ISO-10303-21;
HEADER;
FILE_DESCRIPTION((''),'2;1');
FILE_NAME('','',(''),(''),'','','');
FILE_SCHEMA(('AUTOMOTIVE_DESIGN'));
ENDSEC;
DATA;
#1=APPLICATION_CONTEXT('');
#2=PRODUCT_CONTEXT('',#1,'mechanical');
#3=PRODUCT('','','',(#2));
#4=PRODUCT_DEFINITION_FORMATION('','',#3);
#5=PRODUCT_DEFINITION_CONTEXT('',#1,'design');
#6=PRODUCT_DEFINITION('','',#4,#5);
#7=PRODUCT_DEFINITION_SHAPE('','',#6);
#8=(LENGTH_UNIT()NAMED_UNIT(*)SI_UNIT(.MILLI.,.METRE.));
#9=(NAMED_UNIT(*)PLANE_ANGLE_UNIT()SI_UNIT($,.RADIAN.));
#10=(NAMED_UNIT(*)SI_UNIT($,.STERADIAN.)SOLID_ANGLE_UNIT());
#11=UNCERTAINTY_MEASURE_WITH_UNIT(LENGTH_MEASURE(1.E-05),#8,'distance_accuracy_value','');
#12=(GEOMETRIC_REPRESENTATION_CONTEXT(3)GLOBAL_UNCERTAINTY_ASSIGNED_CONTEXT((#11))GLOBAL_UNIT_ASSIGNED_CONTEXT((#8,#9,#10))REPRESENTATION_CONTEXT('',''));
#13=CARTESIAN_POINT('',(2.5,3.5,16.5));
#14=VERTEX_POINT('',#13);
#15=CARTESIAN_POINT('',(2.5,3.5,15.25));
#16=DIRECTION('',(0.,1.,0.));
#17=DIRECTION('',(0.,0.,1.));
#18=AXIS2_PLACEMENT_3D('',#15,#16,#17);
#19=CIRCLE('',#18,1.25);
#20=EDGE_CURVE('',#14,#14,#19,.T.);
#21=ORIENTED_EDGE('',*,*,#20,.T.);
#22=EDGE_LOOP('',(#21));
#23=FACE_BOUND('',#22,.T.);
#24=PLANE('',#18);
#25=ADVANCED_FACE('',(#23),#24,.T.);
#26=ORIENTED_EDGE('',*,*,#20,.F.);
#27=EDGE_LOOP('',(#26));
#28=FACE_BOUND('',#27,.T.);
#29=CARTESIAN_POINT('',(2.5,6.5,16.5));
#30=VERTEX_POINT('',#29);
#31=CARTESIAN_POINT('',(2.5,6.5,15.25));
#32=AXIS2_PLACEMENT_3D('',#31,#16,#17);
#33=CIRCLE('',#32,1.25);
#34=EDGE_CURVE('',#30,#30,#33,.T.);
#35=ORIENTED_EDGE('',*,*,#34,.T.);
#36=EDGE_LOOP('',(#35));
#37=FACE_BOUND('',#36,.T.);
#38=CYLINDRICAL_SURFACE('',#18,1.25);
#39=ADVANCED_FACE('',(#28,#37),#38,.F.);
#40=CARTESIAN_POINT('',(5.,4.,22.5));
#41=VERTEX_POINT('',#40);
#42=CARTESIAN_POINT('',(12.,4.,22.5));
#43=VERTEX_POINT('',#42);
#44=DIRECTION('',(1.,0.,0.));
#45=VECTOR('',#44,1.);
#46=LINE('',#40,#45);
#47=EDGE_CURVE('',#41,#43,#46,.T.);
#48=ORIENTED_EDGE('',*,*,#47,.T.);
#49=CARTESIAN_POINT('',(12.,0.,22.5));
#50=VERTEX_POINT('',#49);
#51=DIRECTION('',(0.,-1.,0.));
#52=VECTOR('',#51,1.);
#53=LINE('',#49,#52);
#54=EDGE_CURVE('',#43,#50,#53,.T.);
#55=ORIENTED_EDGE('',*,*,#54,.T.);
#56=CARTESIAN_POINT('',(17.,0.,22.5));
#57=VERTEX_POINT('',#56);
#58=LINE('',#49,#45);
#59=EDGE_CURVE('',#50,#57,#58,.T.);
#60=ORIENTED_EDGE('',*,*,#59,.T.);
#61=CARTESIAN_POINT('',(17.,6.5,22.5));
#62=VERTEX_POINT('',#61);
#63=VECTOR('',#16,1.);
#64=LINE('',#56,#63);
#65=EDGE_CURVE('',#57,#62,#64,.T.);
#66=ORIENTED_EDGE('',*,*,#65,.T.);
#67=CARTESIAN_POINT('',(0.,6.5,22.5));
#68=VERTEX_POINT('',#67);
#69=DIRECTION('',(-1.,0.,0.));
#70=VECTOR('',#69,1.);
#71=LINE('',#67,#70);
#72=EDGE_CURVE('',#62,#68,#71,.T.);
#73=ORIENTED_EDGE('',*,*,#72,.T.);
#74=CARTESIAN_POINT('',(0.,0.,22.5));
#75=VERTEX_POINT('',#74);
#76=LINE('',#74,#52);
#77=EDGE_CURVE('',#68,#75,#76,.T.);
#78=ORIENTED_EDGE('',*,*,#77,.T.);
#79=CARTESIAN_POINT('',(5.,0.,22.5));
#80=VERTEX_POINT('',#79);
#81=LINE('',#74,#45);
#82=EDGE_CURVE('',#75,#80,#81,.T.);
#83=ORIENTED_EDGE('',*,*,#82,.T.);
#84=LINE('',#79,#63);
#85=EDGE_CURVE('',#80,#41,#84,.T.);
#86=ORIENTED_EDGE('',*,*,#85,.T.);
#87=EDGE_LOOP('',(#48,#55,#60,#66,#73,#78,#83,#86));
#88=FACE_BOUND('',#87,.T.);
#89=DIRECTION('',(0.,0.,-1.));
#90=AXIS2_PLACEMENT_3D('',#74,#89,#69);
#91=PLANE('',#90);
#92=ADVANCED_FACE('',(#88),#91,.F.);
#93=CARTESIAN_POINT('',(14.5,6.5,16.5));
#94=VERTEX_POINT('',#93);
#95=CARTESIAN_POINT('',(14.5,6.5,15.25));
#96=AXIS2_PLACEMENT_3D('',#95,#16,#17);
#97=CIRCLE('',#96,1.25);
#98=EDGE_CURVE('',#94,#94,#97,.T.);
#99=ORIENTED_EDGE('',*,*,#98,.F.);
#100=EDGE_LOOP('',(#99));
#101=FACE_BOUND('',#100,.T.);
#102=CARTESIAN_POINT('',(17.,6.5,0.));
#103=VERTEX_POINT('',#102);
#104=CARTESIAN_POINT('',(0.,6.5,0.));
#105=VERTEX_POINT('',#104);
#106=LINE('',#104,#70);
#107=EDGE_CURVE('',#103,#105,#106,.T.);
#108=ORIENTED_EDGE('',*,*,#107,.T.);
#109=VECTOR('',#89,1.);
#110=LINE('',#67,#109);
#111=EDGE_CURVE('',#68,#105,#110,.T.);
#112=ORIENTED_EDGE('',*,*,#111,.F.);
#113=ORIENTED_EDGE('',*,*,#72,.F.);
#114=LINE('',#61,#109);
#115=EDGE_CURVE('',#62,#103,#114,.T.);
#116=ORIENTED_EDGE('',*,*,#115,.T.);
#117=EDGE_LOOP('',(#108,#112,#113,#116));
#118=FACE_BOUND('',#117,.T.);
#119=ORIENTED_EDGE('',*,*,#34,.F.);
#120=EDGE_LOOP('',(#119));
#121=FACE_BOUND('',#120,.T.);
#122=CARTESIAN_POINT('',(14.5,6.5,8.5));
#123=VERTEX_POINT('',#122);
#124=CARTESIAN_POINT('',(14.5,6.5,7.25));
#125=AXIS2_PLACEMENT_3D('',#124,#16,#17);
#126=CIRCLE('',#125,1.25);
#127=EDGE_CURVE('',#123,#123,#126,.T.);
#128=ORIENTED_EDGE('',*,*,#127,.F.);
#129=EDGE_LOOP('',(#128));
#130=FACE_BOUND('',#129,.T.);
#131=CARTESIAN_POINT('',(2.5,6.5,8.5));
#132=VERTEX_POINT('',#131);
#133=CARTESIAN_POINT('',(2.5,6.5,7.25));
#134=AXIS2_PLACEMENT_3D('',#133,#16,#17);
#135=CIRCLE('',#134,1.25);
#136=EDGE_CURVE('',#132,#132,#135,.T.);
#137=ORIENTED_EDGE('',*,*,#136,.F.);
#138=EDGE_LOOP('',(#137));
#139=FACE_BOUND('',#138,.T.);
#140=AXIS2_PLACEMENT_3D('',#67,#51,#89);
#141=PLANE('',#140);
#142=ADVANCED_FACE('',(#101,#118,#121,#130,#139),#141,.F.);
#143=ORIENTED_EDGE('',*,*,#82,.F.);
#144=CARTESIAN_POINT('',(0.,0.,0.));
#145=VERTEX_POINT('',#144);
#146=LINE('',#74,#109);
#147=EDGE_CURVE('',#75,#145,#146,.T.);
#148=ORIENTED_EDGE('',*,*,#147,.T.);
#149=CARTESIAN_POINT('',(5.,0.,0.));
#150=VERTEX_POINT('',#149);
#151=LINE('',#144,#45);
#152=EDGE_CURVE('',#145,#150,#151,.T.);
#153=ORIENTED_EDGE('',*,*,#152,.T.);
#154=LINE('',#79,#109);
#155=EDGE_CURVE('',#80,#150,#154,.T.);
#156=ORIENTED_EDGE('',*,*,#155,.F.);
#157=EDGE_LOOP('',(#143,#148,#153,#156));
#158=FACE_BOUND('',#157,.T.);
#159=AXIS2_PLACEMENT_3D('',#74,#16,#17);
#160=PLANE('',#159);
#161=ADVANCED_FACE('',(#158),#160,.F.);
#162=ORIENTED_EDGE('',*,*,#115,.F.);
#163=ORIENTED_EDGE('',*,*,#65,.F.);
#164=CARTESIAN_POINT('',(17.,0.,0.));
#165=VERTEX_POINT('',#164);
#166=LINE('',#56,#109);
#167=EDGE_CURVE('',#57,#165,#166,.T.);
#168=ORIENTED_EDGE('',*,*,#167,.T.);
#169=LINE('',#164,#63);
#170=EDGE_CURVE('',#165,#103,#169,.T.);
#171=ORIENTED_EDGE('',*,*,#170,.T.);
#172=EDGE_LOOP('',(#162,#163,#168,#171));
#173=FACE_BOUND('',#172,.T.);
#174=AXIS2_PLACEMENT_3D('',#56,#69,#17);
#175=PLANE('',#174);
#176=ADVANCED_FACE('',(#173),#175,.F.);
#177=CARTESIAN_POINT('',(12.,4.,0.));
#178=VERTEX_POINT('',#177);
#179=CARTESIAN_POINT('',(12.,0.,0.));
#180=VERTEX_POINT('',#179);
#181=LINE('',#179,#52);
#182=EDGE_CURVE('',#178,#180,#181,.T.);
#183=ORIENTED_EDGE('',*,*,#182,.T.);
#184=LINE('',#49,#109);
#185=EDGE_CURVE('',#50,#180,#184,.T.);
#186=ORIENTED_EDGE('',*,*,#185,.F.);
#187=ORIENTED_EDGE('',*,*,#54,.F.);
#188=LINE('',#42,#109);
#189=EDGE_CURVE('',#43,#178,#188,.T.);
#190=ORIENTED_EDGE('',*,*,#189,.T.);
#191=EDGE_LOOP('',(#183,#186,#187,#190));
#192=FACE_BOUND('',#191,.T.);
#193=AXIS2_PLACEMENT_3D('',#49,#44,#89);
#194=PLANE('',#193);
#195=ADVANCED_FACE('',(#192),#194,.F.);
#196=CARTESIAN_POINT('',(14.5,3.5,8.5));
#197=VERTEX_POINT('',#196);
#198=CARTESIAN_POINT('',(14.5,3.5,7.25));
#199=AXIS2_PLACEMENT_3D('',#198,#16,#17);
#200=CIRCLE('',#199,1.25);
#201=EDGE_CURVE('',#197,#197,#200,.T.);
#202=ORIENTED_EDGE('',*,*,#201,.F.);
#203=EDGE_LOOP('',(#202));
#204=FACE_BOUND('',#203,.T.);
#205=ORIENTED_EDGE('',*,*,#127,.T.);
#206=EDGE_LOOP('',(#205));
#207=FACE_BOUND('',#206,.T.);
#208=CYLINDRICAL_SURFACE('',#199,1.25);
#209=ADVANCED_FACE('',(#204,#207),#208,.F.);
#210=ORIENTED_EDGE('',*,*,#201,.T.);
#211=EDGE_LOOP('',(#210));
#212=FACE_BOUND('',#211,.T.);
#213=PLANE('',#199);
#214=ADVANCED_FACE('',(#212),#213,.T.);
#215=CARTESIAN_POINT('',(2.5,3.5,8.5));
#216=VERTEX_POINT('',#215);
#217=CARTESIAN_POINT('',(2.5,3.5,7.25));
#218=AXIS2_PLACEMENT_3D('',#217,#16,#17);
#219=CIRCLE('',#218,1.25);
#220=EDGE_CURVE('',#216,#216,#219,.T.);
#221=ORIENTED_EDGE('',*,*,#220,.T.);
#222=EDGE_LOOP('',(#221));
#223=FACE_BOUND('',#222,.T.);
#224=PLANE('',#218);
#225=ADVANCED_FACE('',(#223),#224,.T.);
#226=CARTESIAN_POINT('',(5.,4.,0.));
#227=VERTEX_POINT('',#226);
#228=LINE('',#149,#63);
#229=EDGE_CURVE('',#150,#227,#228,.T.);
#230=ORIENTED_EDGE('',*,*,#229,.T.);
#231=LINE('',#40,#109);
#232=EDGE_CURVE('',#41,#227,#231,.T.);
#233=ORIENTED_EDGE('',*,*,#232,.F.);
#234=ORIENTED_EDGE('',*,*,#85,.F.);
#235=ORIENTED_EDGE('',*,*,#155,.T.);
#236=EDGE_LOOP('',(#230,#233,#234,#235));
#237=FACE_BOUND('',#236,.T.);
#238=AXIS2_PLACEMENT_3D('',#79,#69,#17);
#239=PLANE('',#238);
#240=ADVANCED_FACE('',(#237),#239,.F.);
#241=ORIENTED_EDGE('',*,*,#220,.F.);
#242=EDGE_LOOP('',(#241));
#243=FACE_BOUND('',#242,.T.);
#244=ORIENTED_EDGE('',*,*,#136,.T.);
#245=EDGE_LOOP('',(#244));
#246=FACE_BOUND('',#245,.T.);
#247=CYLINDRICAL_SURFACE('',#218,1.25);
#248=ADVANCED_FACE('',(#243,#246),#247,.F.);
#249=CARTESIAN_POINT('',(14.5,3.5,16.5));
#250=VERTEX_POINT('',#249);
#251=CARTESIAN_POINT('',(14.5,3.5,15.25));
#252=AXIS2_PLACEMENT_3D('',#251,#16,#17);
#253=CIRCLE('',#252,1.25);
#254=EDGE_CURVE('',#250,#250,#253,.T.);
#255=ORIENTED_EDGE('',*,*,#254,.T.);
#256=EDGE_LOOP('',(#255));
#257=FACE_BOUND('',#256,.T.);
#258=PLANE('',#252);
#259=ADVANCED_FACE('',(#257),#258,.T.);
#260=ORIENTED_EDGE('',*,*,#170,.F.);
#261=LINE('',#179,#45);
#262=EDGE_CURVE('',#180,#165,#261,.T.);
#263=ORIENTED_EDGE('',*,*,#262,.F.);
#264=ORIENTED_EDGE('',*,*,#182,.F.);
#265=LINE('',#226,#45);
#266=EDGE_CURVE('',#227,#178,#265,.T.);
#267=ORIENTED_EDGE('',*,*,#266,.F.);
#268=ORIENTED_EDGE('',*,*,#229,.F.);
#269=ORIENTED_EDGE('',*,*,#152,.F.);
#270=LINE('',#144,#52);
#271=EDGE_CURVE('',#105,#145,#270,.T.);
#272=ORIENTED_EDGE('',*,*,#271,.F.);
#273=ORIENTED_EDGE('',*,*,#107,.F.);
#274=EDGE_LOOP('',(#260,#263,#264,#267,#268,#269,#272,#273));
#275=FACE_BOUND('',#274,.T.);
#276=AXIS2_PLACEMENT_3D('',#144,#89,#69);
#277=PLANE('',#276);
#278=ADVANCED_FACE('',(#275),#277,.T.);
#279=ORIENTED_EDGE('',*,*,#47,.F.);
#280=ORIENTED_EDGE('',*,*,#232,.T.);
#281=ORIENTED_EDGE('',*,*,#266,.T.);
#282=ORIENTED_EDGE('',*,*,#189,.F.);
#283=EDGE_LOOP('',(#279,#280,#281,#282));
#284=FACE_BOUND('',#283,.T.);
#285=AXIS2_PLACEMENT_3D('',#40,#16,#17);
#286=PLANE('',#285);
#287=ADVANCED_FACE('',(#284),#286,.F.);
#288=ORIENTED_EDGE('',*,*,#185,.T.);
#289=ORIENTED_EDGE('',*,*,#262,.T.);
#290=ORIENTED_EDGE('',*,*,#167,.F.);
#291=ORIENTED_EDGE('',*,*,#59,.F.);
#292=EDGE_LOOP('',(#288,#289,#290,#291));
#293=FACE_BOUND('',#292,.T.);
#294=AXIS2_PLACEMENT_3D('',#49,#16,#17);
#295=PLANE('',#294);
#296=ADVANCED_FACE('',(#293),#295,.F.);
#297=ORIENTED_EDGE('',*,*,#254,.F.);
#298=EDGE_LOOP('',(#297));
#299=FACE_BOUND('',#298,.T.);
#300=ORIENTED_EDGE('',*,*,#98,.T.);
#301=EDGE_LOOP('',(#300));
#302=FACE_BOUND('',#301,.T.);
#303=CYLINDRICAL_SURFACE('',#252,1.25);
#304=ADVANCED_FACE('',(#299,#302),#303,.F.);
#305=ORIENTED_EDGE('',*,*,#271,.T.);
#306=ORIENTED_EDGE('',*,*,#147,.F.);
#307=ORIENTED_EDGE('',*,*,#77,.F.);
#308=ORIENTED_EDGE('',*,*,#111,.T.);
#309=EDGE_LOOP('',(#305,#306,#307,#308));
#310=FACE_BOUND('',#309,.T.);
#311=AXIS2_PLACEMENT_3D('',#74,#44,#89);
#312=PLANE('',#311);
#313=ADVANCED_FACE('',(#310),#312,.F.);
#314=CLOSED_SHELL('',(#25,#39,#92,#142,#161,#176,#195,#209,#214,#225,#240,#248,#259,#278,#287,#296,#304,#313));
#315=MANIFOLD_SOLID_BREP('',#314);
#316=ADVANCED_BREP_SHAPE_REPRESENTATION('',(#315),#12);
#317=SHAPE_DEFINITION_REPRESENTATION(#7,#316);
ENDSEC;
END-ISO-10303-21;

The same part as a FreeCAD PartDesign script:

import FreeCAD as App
import Part
import Sketcher
Q = App.Units.Quantity


def add_polygon(sketch, points):
    """Adds a closed chain of lines whose ends are joined by coincident constraints."""
    first, n = sketch.GeometryCount, len(points)
    for a, b in zip(points, points[1:] + points[:1]):
        sketch.addGeometry(Part.LineSegment(App.Vector(*a, 0), App.Vector(*b, 0)), False)
    for i in range(n):
        sketch.addConstraint(Sketcher.Constraint("Coincident", first + i, 2, first + (i + 1) % n, 1))

doc = App.newDocument("Part")
body = doc.addObject("PartDesign::Body", "Body")

# Sketch on XY plane
sketch1 = doc.addObject("Sketcher::SketchObject", "Sketch")
body.addObject(sketch1)
sketch1.AttachmentSupport = (doc.XY_Plane, [""])
sketch1.MapMode = "FlatFace"
add_polygon(sketch1, [(12, 0), (17, 0), (17, 6.5), (0, 6.5), (0, 0), (5, 0), (5, 4), (12, 4)])  # lines 0-7
sketch1.addConstraint(Sketcher.Constraint("Horizontal", 0))
sketch1.addConstraint(Sketcher.Constraint("Vertical", 1))
sketch1.addConstraint(Sketcher.Constraint("Horizontal", 2))
sketch1.addConstraint(Sketcher.Constraint("Vertical", 3))
sketch1.addConstraint(Sketcher.Constraint("Horizontal", 4))
sketch1.addConstraint(Sketcher.Constraint("Vertical", 5))
sketch1.addConstraint(Sketcher.Constraint("Horizontal", 6))
sketch1.addConstraint(Sketcher.Constraint("Vertical", 7))
sketch1.addConstraint(Sketcher.Constraint("Coincident", 3, 2, -1, 1))
sketch1.addConstraint(Sketcher.Constraint("PointOnObject", 0, 2, -1))
sketch1.addConstraint(Sketcher.Constraint("Equal", 0, 4))
sketch1.addConstraint(Sketcher.Constraint("DistanceX", 0, 1, 0, 2, Q("5 mm")))
sketch1.addConstraint(Sketcher.Constraint("DistanceX", 2, 2, 2, 1, Q("17 mm")))
sketch1.addConstraint(Sketcher.Constraint("DistanceY", 5, 1, 5, 2, Q("4 mm")))
sketch1.addConstraint(Sketcher.Constraint("DistanceY", 1, 1, 1, 2, Q("6.5 mm")))
pad1 = doc.addObject("PartDesign::Pad", "Pad")
body.addObject(pad1)
pad1.Profile = sketch1
pad1.Length = 22.5

# Sketch on XZ plane
sketch2 = doc.addObject("Sketcher::SketchObject", "Sketch001")
body.addObject(sketch2)
sketch2.AttachmentSupport = (doc.XZ_Plane, [""])
sketch2.MapMode = "FlatFace"
sketch2.AttachmentOffset = App.Placement(App.Vector(0, 0, -6.5), App.Rotation())
sketch2.addGeometry(Part.Circle(App.Vector(14.5, 7.2, 0), App.Vector(0, 0, 1), 1.2), False)
sketch2.addGeometry(Part.Circle(App.Vector(2.5, 7.2, 0), App.Vector(0, 0, 1), 1.2), False)
sketch2.addGeometry(Part.Circle(App.Vector(2.5, 15.2, 0), App.Vector(0, 0, 1), 1.2), False)
sketch2.addGeometry(Part.Circle(App.Vector(14.5, 15.2, 0), App.Vector(0, 0, 1), 1.2), False)
sketch2.addConstraint(Sketcher.Constraint("Equal", 0, 1))
sketch2.addConstraint(Sketcher.Constraint("Equal", 1, 2))
sketch2.addConstraint(Sketcher.Constraint("Equal", 2, 3))
sketch2.addConstraint(Sketcher.Constraint("Horizontal", 0, 3, 1, 3))
sketch2.addConstraint(Sketcher.Constraint("Horizontal", 2, 3, 3, 3))
sketch2.addConstraint(Sketcher.Constraint("Vertical", 1, 3, 2, 3))
sketch2.addConstraint(Sketcher.Constraint("Vertical", 0, 3, 3, 3))
sketch2.addConstraint(Sketcher.Constraint("Diameter", 0, Q("2.5 mm")))
sketch2.addConstraint(Sketcher.Constraint("DistanceX", 1, 3, 0, 3, Q("12 mm")))
sketch2.addConstraint(Sketcher.Constraint("DistanceY", 1, 3, 2, 3, Q("8 mm")))
sketch2.addConstraint(Sketcher.Constraint("DistanceX", -1, 1, 0, 3, Q("14.5 mm")))
sketch2.addConstraint(Sketcher.Constraint("DistanceY", -1, 1, 0, 3, Q("7.25 mm")))
pocket1 = doc.addObject("PartDesign::Pocket", "Pocket")
body.addObject(pocket1)
pocket1.Profile = sketch2
pocket1.Length = 3
pocket1.Reversed = True

doc.recompute()
